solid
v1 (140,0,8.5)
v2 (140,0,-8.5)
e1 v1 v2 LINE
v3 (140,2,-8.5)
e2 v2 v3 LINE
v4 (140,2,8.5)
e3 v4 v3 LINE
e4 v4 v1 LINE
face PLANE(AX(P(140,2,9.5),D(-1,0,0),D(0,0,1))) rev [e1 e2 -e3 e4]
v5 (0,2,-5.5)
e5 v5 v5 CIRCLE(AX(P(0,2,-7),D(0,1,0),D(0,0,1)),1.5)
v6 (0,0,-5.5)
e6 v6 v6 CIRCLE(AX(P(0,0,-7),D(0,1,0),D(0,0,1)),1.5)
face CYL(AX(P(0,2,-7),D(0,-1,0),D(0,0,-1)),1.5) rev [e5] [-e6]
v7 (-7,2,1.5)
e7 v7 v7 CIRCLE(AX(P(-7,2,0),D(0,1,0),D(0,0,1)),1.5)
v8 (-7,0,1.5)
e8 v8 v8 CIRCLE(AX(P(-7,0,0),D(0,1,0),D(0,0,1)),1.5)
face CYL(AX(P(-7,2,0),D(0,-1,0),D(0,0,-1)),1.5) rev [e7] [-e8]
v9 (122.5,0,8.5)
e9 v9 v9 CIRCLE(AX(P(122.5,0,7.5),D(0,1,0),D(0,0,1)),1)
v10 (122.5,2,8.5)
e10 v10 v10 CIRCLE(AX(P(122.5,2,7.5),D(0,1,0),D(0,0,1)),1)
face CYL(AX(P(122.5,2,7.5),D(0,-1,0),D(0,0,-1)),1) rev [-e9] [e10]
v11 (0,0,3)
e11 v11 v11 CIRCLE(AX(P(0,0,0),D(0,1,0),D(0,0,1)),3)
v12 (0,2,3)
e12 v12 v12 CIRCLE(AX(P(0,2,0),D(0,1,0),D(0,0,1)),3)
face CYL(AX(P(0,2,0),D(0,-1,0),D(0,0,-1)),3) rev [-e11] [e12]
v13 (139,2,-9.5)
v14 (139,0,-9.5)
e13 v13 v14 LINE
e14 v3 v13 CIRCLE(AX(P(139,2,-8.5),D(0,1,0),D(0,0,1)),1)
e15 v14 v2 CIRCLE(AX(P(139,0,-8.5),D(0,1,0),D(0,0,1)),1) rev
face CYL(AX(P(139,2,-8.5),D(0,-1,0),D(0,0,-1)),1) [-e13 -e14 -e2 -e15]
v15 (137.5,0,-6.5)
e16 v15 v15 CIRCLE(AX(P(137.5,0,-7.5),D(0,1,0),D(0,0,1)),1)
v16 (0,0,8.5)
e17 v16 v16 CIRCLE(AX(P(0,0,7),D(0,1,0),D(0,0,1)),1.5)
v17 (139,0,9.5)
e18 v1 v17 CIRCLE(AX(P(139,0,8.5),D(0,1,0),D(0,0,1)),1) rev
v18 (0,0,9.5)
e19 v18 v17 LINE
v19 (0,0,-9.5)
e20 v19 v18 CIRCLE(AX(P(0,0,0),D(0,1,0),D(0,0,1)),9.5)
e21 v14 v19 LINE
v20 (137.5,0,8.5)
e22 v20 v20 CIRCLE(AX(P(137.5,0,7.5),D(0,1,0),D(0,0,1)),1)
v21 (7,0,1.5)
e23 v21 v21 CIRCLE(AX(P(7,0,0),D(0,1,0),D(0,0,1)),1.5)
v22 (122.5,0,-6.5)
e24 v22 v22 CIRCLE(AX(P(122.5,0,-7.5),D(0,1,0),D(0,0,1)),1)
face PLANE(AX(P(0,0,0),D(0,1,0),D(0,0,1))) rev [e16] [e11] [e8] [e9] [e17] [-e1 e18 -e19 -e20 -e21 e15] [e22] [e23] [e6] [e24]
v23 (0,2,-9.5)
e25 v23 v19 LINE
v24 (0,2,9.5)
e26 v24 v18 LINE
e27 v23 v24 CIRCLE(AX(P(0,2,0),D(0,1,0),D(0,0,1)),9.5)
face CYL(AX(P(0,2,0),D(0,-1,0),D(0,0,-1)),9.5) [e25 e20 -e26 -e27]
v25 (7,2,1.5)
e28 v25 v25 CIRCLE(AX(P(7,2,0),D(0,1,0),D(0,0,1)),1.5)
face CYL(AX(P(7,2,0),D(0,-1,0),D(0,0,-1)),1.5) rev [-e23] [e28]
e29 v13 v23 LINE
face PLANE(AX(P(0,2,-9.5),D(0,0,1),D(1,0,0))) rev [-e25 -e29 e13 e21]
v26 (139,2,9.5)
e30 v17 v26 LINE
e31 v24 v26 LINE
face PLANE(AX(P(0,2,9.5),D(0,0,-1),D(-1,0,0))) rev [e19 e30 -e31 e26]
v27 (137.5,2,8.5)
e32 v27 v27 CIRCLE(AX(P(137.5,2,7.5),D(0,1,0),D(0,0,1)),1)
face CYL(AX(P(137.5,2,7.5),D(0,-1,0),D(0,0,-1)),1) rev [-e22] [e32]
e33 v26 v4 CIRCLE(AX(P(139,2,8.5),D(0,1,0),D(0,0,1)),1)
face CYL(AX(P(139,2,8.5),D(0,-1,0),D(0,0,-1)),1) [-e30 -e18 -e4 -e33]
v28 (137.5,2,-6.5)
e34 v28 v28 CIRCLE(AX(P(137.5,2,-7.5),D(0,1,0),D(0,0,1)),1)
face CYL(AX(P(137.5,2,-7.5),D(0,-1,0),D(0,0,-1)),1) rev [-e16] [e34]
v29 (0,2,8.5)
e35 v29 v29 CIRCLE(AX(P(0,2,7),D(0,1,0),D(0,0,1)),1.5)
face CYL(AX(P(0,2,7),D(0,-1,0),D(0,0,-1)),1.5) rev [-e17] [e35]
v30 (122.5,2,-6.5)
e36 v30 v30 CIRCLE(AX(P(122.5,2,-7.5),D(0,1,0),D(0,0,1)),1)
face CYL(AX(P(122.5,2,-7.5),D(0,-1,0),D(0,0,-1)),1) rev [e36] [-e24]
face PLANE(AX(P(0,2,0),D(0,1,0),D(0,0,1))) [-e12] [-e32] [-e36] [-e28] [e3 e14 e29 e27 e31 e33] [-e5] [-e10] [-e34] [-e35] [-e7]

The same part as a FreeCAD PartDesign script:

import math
import FreeCAD as App
import Part
import Sketcher
from FreeCAD import Vector
Q = App.Units.Quantity


def edges_at(feature, points):
    """Names of the edges that pass closest to the given points."""
    edges = feature.Shape.Edges
    near = lambda p: min(range(len(edges)), key=lambda i: edges[i].distToShape(Part.Vertex(*p))[0])
    return sorted({f"Edge{near(p) + 1}" for p in points})

doc = App.newDocument("Part")
body = doc.addObject("PartDesign::Body", "Body")

sketch1 = body.newObject("Sketcher::SketchObject", "Sketch")
sketch1.AttachmentSupport = (doc.getObject("XZ_Plane"), [""])
sketch1.MapMode = "FlatFace"
sketch1.addGeometry(Part.LineSegment(Vector(140, -9.5, 0), Vector(0, -9.5, 0)), False)
sketch1.addGeometry(Part.ArcOfCircle(Part.Circle(Vector(0, 0, 0), Vector(0, 0, 1), 9.5), math.radians(90), math.radians(270)), False)
sketch1.addGeometry(Part.LineSegment(Vector(0, 9.5, 0), Vector(140, 9.5, 0)), False)
sketch1.addGeometry(Part.LineSegment(Vector(140, 9.5, 0), Vector(140, -9.5, 0)), False)
sketch1.addGeometry(Part.Circle(Vector(137.5, 7.5, 0), Vector(0, 0, 1), 1), False)
sketch1.addGeometry(Part.Circle(Vector(122.5, 7.5, 0), Vector(0, 0, 1), 1), False)
sketch1.addGeometry(Part.Circle(Vector(0, 7, 0), Vector(0, 0, 1), 1.5), False)
sketch1.addGeometry(Part.Circle(Vector(137.5, -7.5, 0), Vector(0, 0, 1), 1), False)
sketch1.addGeometry(Part.Circle(Vector(122.5, -7.5, 0), Vector(0, 0, 1), 1), False)
sketch1.addGeometry(Part.Circle(Vector(7, 0, 0), Vector(0, 0, 1), 1.5), False)
sketch1.addGeometry(Part.Circle(Vector(0, 0, 0), Vector(0, 0, 1), 3), False)
sketch1.addGeometry(Part.Circle(Vector(-7, 0, 0), Vector(0, 0, 1), 1.5), False)
sketch1.addGeometry(Part.Circle(Vector(0, -7, 0), Vector(0, 0, 1), 1.5), False)
sketch1.addConstraint(Sketcher.Constraint("Tangent", 0, 2, 1, 2))
sketch1.addConstraint(Sketcher.Constraint("Tangent", 1, 1, 2, 1))
sketch1.addConstraint(Sketcher.Constraint("Coincident", 2, 2, 3, 1))
sketch1.addConstraint(Sketcher.Constraint("Coincident", 3, 2, 0, 1))
sketch1.addConstraint(Sketcher.Constraint("Horizontal", 0))
sketch1.addConstraint(Sketcher.Constraint("Horizontal", 2))
sketch1.addConstraint(Sketcher.Constraint("Vertical", 3))
sketch1.addConstraint(Sketcher.Constraint("Coincident", 1, 3, -1, 1))
sketch1.addConstraint(Sketcher.Constraint("Coincident", 10, 3, -1, 1))
sketch1.addConstraint(Sketcher.Constraint("Equal", 4, 5))
sketch1.addConstraint(Sketcher.Constraint("Equal", 5, 7))
sketch1.addConstraint(Sketcher.Constraint("Equal", 7, 8))
sketch1.addConstraint(Sketcher.Constraint("Equal", 6, 9))
sketch1.addConstraint(Sketcher.Constraint("Equal", 9, 11))
sketch1.addConstraint(Sketcher.Constraint("Equal", 11, 12))
sketch1.addConstraint(Sketcher.Constraint("Symmetric", 9, 3, 11, 3, -1, 1))
sketch1.addConstraint(Sketcher.Constraint("Symmetric", 6, 3, 12, 3, -1, 1))
sketch1.addConstraint(Sketcher.Constraint("Symmetric", 4, 3, 7, 3, -1))
sketch1.addConstraint(Sketcher.Constraint("Symmetric", 5, 3, 8, 3, -1))
sketch1.addConstraint(Sketcher.Constraint("PointOnObject", 6, 3, -2))
sketch1.addConstraint(Sketcher.Constraint("PointOnObject", 9, 3, -1))
sketch1.addConstraint(Sketcher.Constraint("Horizontal", 4, 3, 5, 3))
sketch1.addConstraint(Sketcher.Constraint("Diameter", 4, Q("2 mm")))
sketch1.addConstraint(Sketcher.Constraint("Diameter", 6, Q("3 mm")))
sketch1.addConstraint(Sketcher.Constraint("Diameter", 10, Q("6 mm")))
sketch1.addConstraint(Sketcher.Constraint("Radius", 1, Q("9.5 mm")))
sketch1.addConstraint(Sketcher.Constraint("DistanceX", 0, 2, 0, 1, Q("140 mm")))
sketch1.addConstraint(Sketcher.Constraint("DistanceY", -1, 1, 6, 3, Q("7 mm")))
sketch1.addConstraint(Sketcher.Constraint("DistanceX", -1, 1, 9, 3, Q("7 mm")))
sketch1.addConstraint(Sketcher.Constraint("DistanceX", 5, 3, 4, 3, Q("15 mm")))
sketch1.addConstraint(Sketcher.Constraint("DistanceY", 7, 3, 4, 3, Q("15 mm")))
sketch1.addConstraint(Sketcher.Constraint("DistanceX", -1, 1, 4, 3, Q("137.5 mm")))
pad1 = body.newObject("PartDesign::Pad", "Pad")
pad1.Profile = sketch1
pad1.Length = 2
pad1.Reversed = True
doc.recompute()

fillet = body.newObject("PartDesign::Fillet", "Fillet")
fillet.Base = (pad1, edges_at(pad1, [(140, 1, -9.5), (140, 1, 9.5)]))
fillet.Radius = 1

doc.recompute()
